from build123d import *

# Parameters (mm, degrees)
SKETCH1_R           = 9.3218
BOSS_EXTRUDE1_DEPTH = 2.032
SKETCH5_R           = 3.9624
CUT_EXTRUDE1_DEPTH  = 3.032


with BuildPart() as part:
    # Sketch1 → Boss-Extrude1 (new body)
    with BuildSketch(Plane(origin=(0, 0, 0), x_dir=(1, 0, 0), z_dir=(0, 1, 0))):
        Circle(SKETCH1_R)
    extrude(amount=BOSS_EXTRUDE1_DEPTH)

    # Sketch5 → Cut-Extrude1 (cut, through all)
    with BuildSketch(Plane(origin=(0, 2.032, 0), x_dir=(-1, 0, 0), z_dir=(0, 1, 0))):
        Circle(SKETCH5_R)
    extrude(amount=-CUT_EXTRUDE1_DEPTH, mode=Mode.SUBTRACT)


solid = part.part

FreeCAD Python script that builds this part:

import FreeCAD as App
import Part
import Sketcher
from FreeCAD import Vector
Q = App.Units.Quantity

doc = App.newDocument("Part")
body = doc.addObject("PartDesign::Body", "Body")

sketch1 = body.newObject("Sketcher::SketchObject", "Sketch")
sketch1.AttachmentSupport = (doc.getObject("XZ_Plane"), [""])
sketch1.MapMode = "FlatFace"
sketch1.addGeometry(Part.Circle(Vector(0, 0, 0), Vector(0, 0, 1), 9), False)
sketch1.addConstraint([
    Sketcher.Constraint("Coincident", 0, 3, -1, 1),
    Sketcher.Constraint("Diameter", 0, Q("0.734 in")),
])
pad1 = body.newObject("PartDesign::Pad", "Pad")
pad1.Profile = sketch1
pad1.Length = Q("0.08 in")
pad1.Reversed = True

sketch2 = body.newObject("Sketcher::SketchObject", "Sketch001")
sketch2.AttachmentSupport = (doc.getObject("XZ_Plane"), [""])
sketch2.MapMode = "FlatFace"
sketch2.AttachmentOffset = App.Placement(Vector(0, 0, -0.08 * 25.4), App.Rotation())
sketch2.addGeometry(Part.Circle(Vector(0, 0, 0), Vector(0, 0, 1), 4), False)
sketch2.addConstraint([
    Sketcher.Constraint("Coincident", 0, 3, -1, 1),
    Sketcher.Constraint("Diameter", 0, Q("0.312 in")),
])
pocket1 = body.newObject("PartDesign::Pocket", "Pocket")
pocket1.Profile = sketch2
pocket1.Type = "ThroughAll"
pocket1.Reversed = True

doc.recompute()
